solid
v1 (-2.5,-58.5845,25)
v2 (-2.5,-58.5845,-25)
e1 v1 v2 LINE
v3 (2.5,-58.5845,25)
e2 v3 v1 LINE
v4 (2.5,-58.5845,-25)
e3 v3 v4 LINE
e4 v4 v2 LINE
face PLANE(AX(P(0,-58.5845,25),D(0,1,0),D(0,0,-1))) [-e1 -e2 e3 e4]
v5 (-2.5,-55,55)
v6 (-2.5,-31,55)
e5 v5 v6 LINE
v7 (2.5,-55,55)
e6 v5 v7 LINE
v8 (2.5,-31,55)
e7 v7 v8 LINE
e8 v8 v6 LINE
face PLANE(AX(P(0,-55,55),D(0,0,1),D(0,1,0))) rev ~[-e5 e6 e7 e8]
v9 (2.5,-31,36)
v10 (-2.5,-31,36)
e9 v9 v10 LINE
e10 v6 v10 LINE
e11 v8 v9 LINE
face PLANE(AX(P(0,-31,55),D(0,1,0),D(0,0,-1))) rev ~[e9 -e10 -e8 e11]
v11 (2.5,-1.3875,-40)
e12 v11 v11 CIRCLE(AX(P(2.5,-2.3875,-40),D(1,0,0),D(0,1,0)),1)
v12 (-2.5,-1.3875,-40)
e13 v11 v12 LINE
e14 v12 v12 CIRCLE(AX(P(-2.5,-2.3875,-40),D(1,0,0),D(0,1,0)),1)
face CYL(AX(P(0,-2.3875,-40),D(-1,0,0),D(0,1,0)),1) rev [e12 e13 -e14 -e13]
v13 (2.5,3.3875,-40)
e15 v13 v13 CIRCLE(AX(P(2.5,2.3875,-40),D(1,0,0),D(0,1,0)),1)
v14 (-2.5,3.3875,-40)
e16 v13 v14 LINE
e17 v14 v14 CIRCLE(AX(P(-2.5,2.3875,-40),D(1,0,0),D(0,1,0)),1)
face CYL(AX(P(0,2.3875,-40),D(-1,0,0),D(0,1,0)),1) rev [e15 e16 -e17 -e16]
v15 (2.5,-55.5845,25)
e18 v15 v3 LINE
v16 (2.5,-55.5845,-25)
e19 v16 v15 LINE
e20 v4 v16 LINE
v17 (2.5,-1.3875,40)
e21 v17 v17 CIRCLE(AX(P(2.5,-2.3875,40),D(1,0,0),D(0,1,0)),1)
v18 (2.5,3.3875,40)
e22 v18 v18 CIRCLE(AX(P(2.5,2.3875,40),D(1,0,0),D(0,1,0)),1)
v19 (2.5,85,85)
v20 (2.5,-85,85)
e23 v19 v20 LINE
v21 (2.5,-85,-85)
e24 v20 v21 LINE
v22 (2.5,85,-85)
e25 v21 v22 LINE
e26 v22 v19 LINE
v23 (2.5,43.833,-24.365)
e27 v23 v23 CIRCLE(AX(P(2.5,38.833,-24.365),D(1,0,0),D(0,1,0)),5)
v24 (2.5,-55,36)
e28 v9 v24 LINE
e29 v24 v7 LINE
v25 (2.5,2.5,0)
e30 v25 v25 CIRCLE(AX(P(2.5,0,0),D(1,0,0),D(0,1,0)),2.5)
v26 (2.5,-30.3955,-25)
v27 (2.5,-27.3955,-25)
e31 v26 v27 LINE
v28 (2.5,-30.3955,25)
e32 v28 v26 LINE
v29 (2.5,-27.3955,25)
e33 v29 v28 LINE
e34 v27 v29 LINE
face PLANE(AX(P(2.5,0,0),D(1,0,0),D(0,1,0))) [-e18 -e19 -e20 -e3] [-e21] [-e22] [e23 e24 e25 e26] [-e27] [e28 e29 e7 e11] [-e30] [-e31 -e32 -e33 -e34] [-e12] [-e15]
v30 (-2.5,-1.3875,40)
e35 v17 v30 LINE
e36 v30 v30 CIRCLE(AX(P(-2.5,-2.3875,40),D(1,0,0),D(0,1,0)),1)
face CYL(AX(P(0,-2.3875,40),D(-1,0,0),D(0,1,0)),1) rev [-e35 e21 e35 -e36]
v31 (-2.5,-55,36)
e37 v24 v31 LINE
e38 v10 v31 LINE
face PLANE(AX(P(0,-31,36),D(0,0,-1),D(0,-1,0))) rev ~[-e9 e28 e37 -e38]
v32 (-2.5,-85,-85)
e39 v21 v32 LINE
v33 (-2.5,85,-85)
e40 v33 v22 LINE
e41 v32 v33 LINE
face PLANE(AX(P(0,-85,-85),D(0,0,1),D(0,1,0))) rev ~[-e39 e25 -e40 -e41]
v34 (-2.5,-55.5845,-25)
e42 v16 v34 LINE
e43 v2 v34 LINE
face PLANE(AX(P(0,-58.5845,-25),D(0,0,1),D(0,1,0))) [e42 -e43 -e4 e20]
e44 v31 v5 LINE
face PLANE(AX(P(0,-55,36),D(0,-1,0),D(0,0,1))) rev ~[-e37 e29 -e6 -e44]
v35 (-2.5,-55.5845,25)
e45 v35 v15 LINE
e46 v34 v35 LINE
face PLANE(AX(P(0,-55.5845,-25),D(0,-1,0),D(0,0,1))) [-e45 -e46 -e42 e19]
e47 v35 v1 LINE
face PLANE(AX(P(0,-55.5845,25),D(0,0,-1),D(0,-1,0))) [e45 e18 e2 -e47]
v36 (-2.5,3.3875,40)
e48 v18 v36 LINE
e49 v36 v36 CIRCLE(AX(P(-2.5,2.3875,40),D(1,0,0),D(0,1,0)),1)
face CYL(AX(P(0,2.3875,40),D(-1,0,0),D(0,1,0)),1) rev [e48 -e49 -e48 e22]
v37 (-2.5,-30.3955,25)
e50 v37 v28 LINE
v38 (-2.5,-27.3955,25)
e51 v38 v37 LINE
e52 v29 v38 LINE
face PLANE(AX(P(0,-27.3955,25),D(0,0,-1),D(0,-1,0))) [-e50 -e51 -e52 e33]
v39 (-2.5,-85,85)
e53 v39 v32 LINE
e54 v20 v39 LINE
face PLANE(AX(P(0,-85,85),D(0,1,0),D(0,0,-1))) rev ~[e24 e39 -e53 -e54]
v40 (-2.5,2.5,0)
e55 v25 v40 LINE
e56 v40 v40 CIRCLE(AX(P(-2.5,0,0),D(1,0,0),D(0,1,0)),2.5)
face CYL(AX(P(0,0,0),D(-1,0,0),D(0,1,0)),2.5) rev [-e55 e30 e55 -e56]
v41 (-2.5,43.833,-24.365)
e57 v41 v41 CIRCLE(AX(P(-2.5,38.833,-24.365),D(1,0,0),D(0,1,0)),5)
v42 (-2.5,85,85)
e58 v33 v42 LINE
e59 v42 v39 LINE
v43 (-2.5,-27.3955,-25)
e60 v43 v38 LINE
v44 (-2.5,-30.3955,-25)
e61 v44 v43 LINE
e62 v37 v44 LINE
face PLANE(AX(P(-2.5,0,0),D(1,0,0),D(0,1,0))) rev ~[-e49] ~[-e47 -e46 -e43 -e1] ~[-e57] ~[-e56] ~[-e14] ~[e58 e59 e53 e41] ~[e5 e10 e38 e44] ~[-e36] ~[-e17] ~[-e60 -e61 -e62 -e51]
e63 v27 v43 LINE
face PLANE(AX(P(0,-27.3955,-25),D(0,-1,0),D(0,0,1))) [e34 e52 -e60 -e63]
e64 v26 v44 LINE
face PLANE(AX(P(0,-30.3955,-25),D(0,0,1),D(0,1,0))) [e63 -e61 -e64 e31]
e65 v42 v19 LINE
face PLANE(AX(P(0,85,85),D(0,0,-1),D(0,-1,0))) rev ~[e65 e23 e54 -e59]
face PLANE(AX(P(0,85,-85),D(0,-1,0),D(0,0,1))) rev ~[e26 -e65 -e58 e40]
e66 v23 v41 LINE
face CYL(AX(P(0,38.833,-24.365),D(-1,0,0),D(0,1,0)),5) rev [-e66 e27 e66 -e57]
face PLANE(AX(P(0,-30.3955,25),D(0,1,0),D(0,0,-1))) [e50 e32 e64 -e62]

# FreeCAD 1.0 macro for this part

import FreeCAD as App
import Part
import Sketcher
from FreeCAD import Vector


def add_polygon(sketch, points):
    """Adds a closed chain of lines whose ends are joined by coincident constraints."""
    first, n = sketch.GeometryCount, len(points)
    for a, b in zip(points, points[1:] + points[:1]):
        sketch.addGeometry(Part.LineSegment(App.Vector(*a, 0), App.Vector(*b, 0)), False)
    for i in range(n):
        sketch.addConstraint(Sketcher.Constraint("Coincident", first + i, 2, first + (i + 1) % n, 1))

doc = App.newDocument("Part")
body = doc.addObject("PartDesign::Body", "Body")

# Sketch on YZ plane
sketch1 = body.newObject("Sketcher::SketchObject", "Sketch")
sketch1.AttachmentSupport = (doc.getObject("YZ_Plane"), [""])
sketch1.MapMode = "FlatFace"
add_polygon(sketch1, [(-85, -85), (85, -85), (85, 85), (-85, 85)])  # lines 0-3
sketch1.addGeometry(Part.Circle(Vector(-2.4, -40, 0), Vector(0, 0, 1), 1), False)  # 4
sketch1.addGeometry(Part.Circle(Vector(2.4, -40, 0), Vector(0, 0, 1), 1), False)  # 5
sketch1.addGeometry(Part.Circle(Vector(38.8, -24.4, 0), Vector(0, 0, 1), 5), False)  # 6
add_polygon(sketch1, [(-58.6, 25), (-55.6, 25), (-55.6, -25), (-58.6, -25)])  # lines 7-10
add_polygon(sketch1, [(-30.4, -25), (-30.4, 25), (-27.4, 25), (-27.4, -25)])  # lines 11-14
add_polygon(sketch1, [(-55, 36), (-55, 55), (-31, 55), (-31, 36)])  # lines 15-18
sketch1.addGeometry(Part.Circle(Vector(-2.4, 40, 0), Vector(0, 0, 1), 1), False)  # 19
sketch1.addGeometry(Part.Circle(Vector(0, 0, 0), Vector(0, 0, 1), 2.5), False)  # 20
sketch1.addGeometry(Part.Circle(Vector(2.4, 40, 0), Vector(0, 0, 1), 1), False)  # 21
sketch1.addConstraint(Sketcher.Constraint("Horizontal", 0))
sketch1.addConstraint(Sketcher.Constraint("Vertical", 1))
sketch1.addConstraint(Sketcher.Constraint("Horizontal", 2))
sketch1.addConstraint(Sketcher.Constraint("Vertical", 3))
sketch1.addConstraint(Sketcher.Constraint("Horizontal", 7))
sketch1.addConstraint(Sketcher.Constraint("Vertical", 8))
sketch1.addConstraint(Sketcher.Constraint("Horizontal", 9))
sketch1.addConstraint(Sketcher.Constraint("Vertical", 10))
sketch1.addConstraint(Sketcher.Constraint("Vertical", 11))
sketch1.addConstraint(Sketcher.Constraint("Horizontal", 12))
sketch1.addConstraint(Sketcher.Constraint("Vertical", 13))
sketch1.addConstraint(Sketcher.Constraint("Horizontal", 14))
sketch1.addConstraint(Sketcher.Constraint("Vertical", 15))
sketch1.addConstraint(Sketcher.Constraint("Horizontal", 16))
sketch1.addConstraint(Sketcher.Constraint("Vertical", 17))
sketch1.addConstraint(Sketcher.Constraint("Horizontal", 18))
sketch1.addConstraint(Sketcher.Constraint("Coincident", 20, 3, -1, 1))
sketch1.addConstraint(Sketcher.Constraint("Equal", 4, 5))
sketch1.addConstraint(Sketcher.Constraint("Equal", 5, 19))
sketch1.addConstraint(Sketcher.Constraint("Equal", 19, 21))
sketch1.addConstraint(Sketcher.Constraint("Symmetric", 5, 3, 19, 3, -1, 1))
sketch1.addConstraint(Sketcher.Constraint("Symmetric", 4, 3, 21, 3, -1, 1))
sketch1.addConstraint(Sketcher.Constraint("Symmetric", 0, 2, 2, 2, -1, 1))
sketch1.addConstraint(Sketcher.Constraint("Symmetric", 4, 3, 5, 3, -2))
sketch1.addConstraint(Sketcher.Constraint("Horizontal", 10, 2, 11, 2))
sketch1.addConstraint(Sketcher.Constraint("Horizontal", 9, 2, 13, 2))
sketch1.addConstraint(Sketcher.Constraint("Equal", 9, 12))
sketch1.addConstraint(Sketcher.Constraint("Equal", 2, 1))
sketch1.addConstraint(Sketcher.Constraint("Diameter", 4, 2.0))
sketch1.addConstraint(Sketcher.Constraint("Diameter", 6, 10.0))
sketch1.addConstraint(Sketcher.Constraint("Diameter", 20, 5.0))
sketch1.addConstraint(Sketcher.Constraint("DistanceX", 7, 1, 7, 2, 3.0))
sketch1.addConstraint(Sketcher.Constraint("DistanceX", 16, 1, 16, 2, 24.0))
sketch1.addConstraint(Sketcher.Constraint("DistanceY", 8, 2, 8, 1, 50.0))
sketch1.addConstraint(Sketcher.Constraint("DistanceY", 15, 1, 15, 2, 19.0))
sketch1.addConstraint(Sketcher.Constraint("DistanceY", 4, 3, -1, 1, 40.0))
sketch1.addConstraint(Sketcher.Constraint("DistanceY", -1, 1, 7, 2, 25.0))
sketch1.addConstraint(Sketcher.Constraint("DistanceY", 7, 2, 15, 2, 30.0))
sketch1.addConstraint(Sketcher.Constraint("DistanceX", 2, 2, 15, 2, 30.0))
sketch1.addConstraint(Sketcher.Constraint("DistanceY", 15, 2, 2, 2, 30.0))
sketch1.addConstraint(Sketcher.Constraint("DistanceX", -1, 1, 6, 3, 38.833))
sketch1.addConstraint(Sketcher.Constraint("DistanceY", 6, 3, -1, 1, 24.365))
sketch1.addConstraint(Sketcher.Constraint("DistanceX", 4, 3, 5, 3, 4.775))
sketch1.addConstraint(Sketcher.Constraint("DistanceX", 7, 2, 11, 2, 25.189))
sketch1.addConstraint(Sketcher.Constraint("DistanceX", 7, 2, 19, 3, 53.197))
pad1 = body.newObject("PartDesign::Pad", "Pad")
pad1.Profile = sketch1
pad1.Length = 5
pad1.Midplane = True

doc.recompute()
